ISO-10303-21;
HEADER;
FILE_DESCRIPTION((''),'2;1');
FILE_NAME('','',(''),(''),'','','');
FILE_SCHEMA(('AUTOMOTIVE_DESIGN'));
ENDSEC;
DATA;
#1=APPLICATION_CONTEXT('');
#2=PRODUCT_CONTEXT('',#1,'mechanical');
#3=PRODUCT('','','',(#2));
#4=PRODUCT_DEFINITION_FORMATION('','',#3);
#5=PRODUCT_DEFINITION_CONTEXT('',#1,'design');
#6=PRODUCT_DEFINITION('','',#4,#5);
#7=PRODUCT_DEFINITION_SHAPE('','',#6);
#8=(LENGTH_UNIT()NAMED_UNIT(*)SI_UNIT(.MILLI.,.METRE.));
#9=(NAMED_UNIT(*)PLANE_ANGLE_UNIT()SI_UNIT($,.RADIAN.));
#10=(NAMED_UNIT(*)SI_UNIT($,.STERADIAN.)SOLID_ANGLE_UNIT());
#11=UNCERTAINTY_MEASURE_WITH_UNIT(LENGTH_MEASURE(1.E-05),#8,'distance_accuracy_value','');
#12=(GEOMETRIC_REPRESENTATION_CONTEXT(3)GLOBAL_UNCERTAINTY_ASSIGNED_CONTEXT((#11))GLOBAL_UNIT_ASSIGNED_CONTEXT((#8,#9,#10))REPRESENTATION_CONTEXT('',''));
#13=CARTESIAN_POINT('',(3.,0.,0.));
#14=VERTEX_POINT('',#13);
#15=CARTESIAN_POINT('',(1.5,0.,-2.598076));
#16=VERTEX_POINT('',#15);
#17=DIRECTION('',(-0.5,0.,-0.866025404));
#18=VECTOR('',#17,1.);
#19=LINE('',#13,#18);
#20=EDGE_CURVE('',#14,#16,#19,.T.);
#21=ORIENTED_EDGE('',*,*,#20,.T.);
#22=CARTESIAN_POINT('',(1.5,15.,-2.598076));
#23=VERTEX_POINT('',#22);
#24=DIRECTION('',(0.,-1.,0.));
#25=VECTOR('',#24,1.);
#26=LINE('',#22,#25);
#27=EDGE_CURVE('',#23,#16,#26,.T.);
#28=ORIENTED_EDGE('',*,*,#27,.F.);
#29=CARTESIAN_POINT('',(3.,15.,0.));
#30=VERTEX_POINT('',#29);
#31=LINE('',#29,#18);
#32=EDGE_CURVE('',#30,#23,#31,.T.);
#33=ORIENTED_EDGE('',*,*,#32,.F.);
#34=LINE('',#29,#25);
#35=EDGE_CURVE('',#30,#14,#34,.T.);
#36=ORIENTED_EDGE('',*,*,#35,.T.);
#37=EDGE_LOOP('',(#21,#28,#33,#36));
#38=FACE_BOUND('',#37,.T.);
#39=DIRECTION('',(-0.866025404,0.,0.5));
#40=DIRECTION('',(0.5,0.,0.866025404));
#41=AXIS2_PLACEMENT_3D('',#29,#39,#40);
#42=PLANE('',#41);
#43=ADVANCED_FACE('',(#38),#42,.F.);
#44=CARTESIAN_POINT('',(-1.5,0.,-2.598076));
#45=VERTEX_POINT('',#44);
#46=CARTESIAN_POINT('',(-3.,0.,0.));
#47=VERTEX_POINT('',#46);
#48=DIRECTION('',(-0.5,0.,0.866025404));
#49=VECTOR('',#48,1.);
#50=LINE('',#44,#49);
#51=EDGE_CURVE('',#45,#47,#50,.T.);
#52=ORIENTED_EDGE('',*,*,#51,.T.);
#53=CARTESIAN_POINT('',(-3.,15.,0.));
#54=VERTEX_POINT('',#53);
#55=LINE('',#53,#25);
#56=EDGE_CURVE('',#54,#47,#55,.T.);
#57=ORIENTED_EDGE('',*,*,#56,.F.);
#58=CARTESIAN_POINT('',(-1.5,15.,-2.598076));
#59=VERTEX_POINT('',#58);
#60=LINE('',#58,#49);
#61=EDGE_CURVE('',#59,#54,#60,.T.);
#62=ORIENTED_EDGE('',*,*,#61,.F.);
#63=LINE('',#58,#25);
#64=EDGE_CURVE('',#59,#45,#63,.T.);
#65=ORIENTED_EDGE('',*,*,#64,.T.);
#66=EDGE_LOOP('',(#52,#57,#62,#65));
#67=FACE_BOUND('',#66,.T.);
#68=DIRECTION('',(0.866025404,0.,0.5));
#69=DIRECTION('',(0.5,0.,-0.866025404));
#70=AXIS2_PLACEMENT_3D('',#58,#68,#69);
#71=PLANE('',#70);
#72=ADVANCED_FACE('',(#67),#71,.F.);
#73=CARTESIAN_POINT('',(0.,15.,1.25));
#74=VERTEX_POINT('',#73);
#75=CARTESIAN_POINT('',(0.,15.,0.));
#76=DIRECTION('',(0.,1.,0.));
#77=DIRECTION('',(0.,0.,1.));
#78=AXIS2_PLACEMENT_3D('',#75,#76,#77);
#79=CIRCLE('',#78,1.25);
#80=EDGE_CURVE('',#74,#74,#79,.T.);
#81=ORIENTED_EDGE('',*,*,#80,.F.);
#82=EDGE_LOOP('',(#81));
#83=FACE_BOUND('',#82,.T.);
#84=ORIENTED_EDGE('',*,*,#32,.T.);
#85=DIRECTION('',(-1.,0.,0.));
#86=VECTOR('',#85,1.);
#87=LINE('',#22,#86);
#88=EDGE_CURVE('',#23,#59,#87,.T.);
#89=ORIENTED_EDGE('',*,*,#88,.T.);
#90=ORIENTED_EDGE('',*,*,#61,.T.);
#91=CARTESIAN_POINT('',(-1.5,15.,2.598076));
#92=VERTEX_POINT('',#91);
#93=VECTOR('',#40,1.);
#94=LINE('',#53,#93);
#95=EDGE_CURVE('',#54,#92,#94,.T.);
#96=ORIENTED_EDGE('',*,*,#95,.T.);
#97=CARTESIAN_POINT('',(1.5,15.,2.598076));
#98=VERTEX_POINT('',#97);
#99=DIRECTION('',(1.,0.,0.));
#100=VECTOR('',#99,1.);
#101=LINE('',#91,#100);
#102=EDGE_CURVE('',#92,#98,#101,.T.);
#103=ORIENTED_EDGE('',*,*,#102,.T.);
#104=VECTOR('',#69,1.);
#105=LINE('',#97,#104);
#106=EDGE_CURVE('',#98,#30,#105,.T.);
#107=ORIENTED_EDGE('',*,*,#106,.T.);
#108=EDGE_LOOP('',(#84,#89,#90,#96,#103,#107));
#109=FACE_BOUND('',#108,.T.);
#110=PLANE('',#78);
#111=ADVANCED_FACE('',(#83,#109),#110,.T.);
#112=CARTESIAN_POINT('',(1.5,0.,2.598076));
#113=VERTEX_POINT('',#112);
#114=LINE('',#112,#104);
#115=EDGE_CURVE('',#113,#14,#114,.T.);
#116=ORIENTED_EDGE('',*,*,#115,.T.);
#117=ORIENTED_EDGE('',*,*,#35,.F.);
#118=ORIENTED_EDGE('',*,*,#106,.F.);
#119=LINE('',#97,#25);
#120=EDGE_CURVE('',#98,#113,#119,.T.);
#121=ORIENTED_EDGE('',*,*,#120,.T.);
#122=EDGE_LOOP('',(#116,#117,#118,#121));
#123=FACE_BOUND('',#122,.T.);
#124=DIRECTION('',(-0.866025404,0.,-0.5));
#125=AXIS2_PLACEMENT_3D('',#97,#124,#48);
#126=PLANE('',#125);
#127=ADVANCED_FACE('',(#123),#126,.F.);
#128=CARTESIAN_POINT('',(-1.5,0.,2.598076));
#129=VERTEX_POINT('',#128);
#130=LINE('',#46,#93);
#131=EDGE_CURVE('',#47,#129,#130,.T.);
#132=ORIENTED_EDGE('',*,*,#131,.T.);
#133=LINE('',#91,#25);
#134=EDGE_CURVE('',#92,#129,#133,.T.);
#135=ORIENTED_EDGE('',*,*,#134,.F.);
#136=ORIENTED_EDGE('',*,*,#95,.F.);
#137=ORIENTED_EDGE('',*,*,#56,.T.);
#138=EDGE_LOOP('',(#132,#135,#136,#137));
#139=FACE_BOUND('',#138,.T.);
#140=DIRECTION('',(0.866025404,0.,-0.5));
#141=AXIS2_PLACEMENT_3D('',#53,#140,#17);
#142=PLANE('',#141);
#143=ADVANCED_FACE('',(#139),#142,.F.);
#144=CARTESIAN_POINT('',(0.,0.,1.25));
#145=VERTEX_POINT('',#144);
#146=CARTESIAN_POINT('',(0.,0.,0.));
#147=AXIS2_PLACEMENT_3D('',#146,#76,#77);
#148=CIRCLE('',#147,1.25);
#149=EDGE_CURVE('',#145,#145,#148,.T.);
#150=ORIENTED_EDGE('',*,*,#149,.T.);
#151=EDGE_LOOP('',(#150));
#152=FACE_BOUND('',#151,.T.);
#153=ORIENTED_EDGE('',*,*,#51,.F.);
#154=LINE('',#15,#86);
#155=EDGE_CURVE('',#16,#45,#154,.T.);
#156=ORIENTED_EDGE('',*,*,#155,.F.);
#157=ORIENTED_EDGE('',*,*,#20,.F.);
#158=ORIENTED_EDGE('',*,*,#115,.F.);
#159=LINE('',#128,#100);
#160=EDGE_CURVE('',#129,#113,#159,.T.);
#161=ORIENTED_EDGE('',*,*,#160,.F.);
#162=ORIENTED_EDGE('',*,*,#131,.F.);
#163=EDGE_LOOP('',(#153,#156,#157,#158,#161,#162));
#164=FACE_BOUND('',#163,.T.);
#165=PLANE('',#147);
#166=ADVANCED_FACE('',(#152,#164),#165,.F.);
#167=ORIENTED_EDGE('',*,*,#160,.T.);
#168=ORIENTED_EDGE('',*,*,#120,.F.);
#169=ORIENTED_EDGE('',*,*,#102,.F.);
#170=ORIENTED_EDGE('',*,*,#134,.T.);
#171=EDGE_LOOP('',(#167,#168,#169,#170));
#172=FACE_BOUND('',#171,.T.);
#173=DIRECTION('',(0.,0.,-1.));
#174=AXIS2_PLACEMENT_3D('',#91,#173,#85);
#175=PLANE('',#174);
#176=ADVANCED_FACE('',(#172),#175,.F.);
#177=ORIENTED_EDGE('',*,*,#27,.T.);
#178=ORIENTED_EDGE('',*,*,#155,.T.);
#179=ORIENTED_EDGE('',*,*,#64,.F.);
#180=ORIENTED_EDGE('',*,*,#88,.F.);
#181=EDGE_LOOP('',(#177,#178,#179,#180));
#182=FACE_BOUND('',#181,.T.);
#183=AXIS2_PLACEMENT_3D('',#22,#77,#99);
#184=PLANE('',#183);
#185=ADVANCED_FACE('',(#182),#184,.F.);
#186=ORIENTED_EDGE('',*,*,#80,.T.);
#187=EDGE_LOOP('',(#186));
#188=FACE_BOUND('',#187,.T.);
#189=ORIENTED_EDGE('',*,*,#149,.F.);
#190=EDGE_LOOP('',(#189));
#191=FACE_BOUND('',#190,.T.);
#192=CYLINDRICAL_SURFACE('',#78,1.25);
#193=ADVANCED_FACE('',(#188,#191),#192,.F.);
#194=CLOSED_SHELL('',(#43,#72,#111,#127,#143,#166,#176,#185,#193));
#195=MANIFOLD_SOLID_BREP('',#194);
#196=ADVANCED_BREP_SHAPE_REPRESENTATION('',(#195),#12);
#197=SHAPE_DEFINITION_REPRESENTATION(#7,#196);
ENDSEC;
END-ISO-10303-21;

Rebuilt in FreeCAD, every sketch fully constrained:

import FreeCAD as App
import Part
import Sketcher
Q = App.Units.Quantity

doc = App.newDocument("Part")
body = doc.addObject("PartDesign::Body", "Body")

# Sketch on XZ plane
sketch1 = body.newObject("Sketcher::SketchObject", "Sketch")
sketch1.AttachmentSupport = (doc.getObject("XZ_Plane"), [""])
sketch1.MapMode = "FlatFace"
sketch1.addGeometry([
    Part.LineSegment(App.Vector(1.5, -2.598076, 0), App.Vector(-1.5, -2.598076, 0)),  # 0
    Part.LineSegment(App.Vector(-1.5, -2.598076, 0), App.Vector(-3, 0, 0)),  # 1
    Part.LineSegment(App.Vector(-3, 0, 0), App.Vector(-1.5, 2.598076, 0)),  # 2
    Part.LineSegment(App.Vector(-1.5, 2.598076, 0), App.Vector(1.5, 2.598076, 0)),  # 3
    Part.LineSegment(App.Vector(1.5, 2.598076, 0), App.Vector(3, 0, 0)),  # 4
    Part.LineSegment(App.Vector(3, 0, 0), App.Vector(1.5, -2.598076, 0)),  # 5
], False)
sketch1.addConstraint([
    Sketcher.Constraint("Coincident", 0, 2, 1, 1),
    Sketcher.Constraint("Coincident", 1, 2, 2, 1),
    Sketcher.Constraint("Coincident", 2, 2, 3, 1),
    Sketcher.Constraint("Coincident", 3, 2, 4, 1),
    Sketcher.Constraint("Coincident", 4, 2, 5, 1),
    Sketcher.Constraint("Coincident", 5, 2, 0, 1),
    Sketcher.Constraint("Horizontal", 0),
    Sketcher.Constraint("Horizontal", 3),
    Sketcher.Constraint("Symmetric", 0, 2, 3, 2, -1, 1),
    Sketcher.Constraint("Symmetric", 1, 2, 4, 2, -1, 1),
    Sketcher.Constraint("PointOnObject", 1, 2, -1),
    Sketcher.Constraint("Parallel", 2, 5),
    Sketcher.Constraint("Vertical", 0, 2, 2, 2),
    Sketcher.Constraint("DistanceX", 0, 2, 0, 1, Q("3 mm")),
    Sketcher.Constraint("Angle", 1, Q("120 deg")),
    Sketcher.Constraint("Distance", 1, Q("3 mm")),
])
pad1 = body.newObject("PartDesign::Pad", "Pad")
pad1.Profile = sketch1
pad1.Length = 15
pad1.Reversed = True

# Sketch on XZ plane
sketch2 = body.newObject("Sketcher::SketchObject", "Sketch001")
sketch2.AttachmentSupport = (doc.getObject("XZ_Plane"), [""])
sketch2.MapMode = "FlatFace"
sketch2.AttachmentOffset = App.Placement(App.Vector(0, 0, -15), App.Rotation())
sketch2.addGeometry(Part.Circle(App.Vector(0, 0, 0), App.Vector(0, 0, 1), 1.25), False)
sketch2.addConstraint([
    Sketcher.Constraint("Coincident", 0, 3, -1, 1),
    Sketcher.Constraint("Diameter", 0, Q("2.5 mm")),
])
doc.recompute()
hole = body.newObject("PartDesign::Hole", "Hole")
hole.Profile = sketch2
hole.ThreadType = "None"
hole.Diameter = 2.5
hole.DepthType = "ThroughAll"
hole.Reversed = True

doc.recompute()
